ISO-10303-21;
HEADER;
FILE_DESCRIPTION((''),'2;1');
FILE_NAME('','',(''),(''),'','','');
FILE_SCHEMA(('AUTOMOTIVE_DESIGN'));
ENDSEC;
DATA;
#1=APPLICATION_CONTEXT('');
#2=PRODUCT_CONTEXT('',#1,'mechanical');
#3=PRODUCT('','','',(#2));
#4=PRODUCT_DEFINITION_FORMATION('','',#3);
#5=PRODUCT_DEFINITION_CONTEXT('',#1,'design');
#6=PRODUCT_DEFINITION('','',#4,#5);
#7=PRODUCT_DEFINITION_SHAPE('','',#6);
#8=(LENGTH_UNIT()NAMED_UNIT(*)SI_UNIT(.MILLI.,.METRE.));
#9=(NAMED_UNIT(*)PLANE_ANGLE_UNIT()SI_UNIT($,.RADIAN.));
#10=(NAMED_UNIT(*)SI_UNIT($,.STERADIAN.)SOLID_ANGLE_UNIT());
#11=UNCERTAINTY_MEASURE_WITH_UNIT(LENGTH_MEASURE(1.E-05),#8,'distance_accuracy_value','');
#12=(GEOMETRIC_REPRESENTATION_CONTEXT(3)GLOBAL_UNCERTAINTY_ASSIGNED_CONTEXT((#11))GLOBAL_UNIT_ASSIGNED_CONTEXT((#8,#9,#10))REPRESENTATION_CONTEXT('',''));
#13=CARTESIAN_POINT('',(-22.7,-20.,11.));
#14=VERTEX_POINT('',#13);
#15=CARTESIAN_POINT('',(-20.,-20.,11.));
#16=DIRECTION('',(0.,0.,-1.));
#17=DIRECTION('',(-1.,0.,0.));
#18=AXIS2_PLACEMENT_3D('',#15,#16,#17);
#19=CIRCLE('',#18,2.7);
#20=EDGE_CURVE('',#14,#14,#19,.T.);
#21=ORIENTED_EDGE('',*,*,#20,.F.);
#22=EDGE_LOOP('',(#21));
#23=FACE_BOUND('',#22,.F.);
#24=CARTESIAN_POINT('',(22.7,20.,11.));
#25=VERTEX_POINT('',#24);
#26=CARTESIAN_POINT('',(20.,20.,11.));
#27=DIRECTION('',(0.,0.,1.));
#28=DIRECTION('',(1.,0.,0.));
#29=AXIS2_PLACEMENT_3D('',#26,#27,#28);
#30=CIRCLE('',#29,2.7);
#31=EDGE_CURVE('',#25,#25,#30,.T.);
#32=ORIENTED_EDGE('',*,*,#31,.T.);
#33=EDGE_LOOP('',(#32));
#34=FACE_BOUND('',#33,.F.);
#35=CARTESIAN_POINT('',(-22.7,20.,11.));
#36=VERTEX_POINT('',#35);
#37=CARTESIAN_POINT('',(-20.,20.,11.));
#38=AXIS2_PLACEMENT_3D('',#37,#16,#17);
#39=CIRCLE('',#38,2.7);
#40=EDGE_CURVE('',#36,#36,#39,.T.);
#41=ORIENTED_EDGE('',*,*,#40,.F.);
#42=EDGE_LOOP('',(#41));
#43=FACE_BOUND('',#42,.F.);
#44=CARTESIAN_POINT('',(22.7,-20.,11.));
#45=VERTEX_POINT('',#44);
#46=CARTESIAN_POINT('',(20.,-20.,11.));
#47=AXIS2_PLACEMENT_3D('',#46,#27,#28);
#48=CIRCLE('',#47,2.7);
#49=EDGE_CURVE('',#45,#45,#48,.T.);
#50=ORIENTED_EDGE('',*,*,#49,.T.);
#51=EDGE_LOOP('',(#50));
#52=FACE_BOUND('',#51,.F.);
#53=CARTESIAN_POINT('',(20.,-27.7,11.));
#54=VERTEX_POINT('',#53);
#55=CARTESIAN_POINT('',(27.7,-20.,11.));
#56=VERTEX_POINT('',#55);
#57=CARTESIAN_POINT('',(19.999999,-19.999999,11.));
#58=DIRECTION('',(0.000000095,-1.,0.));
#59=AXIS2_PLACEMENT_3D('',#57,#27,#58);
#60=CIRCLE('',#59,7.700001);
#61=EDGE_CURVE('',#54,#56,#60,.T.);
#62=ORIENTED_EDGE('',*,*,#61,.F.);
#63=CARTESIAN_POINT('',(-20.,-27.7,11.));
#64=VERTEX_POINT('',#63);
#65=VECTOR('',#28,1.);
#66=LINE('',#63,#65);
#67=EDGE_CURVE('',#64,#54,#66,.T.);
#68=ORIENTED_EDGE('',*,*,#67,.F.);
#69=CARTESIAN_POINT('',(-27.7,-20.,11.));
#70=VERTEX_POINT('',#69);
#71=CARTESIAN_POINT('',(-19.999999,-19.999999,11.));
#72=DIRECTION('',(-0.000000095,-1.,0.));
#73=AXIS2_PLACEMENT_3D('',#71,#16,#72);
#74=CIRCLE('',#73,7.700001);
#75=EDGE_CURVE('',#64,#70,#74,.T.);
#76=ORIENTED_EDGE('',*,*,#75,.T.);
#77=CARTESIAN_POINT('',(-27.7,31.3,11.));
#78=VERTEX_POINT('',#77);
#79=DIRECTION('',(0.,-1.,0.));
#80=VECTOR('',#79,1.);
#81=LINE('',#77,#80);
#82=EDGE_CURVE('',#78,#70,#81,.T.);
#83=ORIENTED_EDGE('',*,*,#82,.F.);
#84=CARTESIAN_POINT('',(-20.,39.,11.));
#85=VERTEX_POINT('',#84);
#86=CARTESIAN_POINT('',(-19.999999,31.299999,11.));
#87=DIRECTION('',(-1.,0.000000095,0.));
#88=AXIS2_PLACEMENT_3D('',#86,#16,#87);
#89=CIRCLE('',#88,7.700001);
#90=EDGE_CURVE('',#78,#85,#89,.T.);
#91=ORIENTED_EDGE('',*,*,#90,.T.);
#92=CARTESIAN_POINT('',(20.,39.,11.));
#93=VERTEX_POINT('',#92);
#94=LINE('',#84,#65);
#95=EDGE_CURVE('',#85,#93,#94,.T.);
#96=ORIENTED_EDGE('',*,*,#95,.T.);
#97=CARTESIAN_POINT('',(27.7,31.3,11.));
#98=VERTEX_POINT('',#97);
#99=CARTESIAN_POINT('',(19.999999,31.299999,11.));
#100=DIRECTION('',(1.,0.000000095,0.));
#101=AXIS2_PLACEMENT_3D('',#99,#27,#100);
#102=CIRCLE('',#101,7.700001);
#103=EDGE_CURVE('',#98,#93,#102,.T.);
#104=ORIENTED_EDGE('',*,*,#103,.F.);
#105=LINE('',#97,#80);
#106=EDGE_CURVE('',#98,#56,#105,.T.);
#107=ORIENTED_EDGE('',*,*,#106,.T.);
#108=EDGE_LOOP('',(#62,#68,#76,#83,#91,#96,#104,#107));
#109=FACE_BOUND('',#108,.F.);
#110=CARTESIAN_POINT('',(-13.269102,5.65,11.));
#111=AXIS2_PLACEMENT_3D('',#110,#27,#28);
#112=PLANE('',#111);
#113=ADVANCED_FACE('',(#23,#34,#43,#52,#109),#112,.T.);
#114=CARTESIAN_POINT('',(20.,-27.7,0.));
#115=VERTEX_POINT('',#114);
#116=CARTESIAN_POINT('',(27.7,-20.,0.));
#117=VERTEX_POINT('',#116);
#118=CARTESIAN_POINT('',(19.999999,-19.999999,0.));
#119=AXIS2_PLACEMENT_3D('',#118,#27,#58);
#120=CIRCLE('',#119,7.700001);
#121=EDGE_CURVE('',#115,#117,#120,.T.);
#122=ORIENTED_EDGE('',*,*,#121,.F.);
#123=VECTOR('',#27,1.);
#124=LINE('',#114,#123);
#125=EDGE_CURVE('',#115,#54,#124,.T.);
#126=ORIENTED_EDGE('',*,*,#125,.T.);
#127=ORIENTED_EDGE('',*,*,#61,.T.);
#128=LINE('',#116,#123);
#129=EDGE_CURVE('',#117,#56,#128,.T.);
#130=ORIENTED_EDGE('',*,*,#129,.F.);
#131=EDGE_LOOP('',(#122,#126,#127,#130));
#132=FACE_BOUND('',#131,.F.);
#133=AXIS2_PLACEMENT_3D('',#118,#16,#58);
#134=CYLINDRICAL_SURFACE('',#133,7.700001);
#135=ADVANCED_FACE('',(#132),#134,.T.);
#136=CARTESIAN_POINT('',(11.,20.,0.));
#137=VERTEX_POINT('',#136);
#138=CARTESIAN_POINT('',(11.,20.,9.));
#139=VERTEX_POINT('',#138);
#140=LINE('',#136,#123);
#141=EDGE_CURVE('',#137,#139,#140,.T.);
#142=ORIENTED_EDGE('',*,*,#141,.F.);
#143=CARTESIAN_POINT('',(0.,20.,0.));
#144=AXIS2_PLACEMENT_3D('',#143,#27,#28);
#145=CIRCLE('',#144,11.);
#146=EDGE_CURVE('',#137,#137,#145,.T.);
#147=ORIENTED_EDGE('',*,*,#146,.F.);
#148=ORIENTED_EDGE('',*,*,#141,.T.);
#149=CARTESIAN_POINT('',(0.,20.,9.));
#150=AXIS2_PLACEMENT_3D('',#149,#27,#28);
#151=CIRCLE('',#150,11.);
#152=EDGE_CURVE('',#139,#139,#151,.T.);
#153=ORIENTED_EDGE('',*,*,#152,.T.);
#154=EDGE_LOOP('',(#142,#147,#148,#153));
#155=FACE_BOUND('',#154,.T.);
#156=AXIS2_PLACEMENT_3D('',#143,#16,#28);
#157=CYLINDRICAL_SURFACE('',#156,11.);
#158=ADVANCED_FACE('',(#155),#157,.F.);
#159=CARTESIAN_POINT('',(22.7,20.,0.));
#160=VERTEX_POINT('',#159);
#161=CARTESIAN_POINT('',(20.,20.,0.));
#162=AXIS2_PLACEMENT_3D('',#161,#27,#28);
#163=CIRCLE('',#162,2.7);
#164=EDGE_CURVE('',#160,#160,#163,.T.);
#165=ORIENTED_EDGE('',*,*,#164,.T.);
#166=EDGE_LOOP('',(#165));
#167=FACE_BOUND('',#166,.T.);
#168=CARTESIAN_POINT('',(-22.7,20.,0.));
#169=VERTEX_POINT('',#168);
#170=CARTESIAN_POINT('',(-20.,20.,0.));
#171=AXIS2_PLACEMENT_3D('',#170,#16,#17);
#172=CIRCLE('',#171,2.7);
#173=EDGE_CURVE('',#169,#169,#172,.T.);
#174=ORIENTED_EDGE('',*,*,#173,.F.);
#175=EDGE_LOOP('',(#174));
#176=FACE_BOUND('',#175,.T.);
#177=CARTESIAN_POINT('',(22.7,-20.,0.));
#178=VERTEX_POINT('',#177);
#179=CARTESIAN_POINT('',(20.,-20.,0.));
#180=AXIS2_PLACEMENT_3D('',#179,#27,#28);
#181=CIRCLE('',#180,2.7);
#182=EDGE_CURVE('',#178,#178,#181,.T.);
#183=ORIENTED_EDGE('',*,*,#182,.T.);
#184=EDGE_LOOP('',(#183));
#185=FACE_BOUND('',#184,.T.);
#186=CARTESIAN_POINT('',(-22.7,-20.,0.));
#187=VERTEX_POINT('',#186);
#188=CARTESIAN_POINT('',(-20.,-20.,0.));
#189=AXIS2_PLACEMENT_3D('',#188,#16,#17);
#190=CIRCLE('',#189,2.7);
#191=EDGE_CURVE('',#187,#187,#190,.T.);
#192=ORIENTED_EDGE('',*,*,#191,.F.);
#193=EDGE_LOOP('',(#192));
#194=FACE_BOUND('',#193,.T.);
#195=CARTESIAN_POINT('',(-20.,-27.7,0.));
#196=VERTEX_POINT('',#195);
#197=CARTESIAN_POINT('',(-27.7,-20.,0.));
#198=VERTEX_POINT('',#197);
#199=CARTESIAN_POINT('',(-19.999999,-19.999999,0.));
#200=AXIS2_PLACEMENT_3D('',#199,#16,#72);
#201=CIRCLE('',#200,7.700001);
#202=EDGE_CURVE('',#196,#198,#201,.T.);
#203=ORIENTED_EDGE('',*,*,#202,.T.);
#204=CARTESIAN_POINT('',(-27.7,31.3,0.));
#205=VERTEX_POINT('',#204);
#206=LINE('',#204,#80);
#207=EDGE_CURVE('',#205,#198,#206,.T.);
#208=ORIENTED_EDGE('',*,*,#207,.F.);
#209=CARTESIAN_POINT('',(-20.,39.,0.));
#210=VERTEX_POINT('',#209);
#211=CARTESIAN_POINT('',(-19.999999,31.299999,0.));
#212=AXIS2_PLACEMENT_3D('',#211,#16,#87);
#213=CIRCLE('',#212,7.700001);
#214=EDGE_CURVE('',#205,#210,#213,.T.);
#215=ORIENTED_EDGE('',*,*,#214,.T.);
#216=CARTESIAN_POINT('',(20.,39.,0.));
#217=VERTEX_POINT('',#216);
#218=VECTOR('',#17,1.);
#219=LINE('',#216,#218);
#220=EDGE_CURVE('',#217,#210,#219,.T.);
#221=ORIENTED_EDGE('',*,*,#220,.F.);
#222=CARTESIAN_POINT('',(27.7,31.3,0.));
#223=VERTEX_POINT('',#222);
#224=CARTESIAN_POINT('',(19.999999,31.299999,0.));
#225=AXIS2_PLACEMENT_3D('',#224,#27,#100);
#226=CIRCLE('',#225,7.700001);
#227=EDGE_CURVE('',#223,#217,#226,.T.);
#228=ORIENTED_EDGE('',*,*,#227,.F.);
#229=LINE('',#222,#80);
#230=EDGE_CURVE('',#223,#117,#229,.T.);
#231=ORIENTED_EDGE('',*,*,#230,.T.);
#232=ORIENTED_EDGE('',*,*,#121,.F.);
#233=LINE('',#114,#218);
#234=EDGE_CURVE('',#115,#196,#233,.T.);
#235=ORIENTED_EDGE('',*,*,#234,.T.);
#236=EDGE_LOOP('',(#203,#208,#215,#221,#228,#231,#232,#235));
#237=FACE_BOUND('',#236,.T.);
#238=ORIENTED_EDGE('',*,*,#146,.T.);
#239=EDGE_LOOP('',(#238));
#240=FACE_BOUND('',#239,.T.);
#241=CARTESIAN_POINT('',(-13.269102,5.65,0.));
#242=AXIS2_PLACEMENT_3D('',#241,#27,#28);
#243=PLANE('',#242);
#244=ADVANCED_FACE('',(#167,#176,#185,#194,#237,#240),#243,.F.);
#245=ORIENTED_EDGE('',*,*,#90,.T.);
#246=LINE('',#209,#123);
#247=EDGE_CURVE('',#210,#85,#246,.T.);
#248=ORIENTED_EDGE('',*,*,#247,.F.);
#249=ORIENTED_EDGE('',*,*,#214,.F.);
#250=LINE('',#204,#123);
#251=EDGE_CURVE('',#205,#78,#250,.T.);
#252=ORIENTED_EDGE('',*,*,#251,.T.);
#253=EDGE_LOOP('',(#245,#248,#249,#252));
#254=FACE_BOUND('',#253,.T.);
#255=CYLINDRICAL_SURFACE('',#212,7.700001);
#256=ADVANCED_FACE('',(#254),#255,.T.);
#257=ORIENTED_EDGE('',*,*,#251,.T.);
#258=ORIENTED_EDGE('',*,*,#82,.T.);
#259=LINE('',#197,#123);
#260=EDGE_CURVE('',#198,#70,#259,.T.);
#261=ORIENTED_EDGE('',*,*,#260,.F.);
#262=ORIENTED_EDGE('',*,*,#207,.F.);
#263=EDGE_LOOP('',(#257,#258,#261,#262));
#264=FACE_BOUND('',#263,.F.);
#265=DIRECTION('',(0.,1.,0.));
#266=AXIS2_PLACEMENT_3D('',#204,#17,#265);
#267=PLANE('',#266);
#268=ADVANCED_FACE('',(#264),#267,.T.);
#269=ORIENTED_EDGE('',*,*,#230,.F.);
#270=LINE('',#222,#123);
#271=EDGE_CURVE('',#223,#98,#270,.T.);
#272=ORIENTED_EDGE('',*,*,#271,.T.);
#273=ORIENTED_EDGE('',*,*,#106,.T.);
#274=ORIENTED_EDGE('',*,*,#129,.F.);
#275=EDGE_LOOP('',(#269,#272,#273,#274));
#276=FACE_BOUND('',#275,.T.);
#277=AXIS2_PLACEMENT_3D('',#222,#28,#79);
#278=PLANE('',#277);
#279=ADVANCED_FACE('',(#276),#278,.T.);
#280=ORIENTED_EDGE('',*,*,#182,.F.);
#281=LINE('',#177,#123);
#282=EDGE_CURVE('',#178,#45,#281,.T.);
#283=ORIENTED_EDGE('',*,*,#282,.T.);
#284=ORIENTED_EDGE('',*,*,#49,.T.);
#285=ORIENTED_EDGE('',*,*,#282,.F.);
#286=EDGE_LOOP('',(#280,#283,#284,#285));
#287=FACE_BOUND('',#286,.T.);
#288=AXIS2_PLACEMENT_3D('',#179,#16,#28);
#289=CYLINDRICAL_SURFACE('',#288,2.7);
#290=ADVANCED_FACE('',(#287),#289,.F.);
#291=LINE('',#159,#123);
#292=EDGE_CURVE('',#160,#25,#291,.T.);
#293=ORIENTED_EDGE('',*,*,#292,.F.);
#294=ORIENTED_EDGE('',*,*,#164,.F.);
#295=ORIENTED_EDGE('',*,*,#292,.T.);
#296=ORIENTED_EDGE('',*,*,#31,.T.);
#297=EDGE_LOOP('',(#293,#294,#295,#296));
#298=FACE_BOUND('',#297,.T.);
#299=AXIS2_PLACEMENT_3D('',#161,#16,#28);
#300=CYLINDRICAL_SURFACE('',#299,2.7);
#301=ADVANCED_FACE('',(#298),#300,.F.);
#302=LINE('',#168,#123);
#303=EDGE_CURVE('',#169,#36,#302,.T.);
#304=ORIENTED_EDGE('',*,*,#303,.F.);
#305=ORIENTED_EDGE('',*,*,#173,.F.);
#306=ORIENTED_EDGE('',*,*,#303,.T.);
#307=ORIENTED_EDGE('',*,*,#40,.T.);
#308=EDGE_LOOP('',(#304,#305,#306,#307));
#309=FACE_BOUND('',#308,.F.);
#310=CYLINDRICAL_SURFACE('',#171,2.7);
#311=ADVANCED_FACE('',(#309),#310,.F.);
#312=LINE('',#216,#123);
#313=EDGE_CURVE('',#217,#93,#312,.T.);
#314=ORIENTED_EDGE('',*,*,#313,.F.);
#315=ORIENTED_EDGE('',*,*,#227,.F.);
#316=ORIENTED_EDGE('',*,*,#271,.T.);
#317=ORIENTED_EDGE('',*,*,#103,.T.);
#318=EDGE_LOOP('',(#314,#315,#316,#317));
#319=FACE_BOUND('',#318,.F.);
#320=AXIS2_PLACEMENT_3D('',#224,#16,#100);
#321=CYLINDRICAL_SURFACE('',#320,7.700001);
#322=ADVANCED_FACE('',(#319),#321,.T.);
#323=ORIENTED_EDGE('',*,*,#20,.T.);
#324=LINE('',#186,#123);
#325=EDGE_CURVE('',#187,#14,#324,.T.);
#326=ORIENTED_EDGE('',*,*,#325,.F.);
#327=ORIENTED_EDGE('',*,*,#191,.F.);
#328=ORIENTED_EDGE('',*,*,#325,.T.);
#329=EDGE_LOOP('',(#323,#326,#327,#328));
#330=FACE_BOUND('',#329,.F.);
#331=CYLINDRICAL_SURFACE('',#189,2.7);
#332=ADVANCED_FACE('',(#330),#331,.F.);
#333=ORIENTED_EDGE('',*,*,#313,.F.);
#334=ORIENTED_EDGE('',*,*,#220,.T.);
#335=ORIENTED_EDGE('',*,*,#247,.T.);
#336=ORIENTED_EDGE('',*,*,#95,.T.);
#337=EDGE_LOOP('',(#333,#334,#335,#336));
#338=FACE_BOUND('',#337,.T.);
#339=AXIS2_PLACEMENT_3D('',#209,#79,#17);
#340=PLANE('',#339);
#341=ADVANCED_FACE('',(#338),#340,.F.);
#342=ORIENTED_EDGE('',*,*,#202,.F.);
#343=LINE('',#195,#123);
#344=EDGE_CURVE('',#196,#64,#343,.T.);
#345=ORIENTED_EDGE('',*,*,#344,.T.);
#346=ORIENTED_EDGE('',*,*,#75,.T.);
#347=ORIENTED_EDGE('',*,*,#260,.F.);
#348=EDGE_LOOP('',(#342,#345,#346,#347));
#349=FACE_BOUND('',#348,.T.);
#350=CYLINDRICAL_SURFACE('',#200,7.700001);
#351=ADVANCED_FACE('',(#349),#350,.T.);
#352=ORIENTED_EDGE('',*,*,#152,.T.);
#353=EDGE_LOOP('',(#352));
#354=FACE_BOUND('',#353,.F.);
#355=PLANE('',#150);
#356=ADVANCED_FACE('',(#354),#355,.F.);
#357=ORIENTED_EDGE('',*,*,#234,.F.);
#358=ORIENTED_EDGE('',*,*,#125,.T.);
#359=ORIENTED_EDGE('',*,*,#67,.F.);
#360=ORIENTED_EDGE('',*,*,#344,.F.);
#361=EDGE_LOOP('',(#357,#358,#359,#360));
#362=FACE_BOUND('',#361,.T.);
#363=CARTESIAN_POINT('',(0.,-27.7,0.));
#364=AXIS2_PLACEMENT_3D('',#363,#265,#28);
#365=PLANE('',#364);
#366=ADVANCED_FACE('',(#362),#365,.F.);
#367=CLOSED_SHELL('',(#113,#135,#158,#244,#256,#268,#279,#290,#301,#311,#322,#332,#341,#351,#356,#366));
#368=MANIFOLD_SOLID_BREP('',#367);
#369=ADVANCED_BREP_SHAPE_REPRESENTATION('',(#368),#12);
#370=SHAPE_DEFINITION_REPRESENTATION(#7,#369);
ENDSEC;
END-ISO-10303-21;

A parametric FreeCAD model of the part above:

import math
import FreeCAD as App
import Part
import Sketcher
Q = App.Units.Quantity

doc = App.newDocument("Part")
body = doc.addObject("PartDesign::Body", "Body")

# Sketch on XY plane
sketch1 = doc.addObject("Sketcher::SketchObject", "Sketch")
body.addObject(sketch1)
sketch1.AttachmentSupport = (doc.XY_Plane, [""])
sketch1.MapMode = "FlatFace"
sketch1.addGeometry([
    Part.LineSegment(App.Vector(20, 39, 0), App.Vector(0, 39, 0)),  # 0
    Part.LineSegment(App.Vector(0, 39, 0), App.Vector(0, -27.7, 0)),  # 1
    Part.LineSegment(App.Vector(0, -27.7, 0), App.Vector(20, -27.7, 0)),  # 2
    Part.ArcOfCircle(Part.Circle(App.Vector(20, -20, 0), App.Vector(0, 0, 1), 7.7), math.radians(-90), math.radians(0)),  # 3
    Part.LineSegment(App.Vector(27.7, -20, 0), App.Vector(27.7, 31.3, 0)),  # 4
    Part.ArcOfCircle(Part.Circle(App.Vector(20, 31.3, 0), App.Vector(0, 0, 1), 7.7), math.radians(0), math.radians(90)),  # 5
    Part.Circle(App.Vector(20, -20, 0), App.Vector(0, 0, 1), 2.7),  # 6
    Part.Circle(App.Vector(20, 20, 0), App.Vector(0, 0, 1), 2.7),  # 7
], False)
sketch1.addConstraint([
    Sketcher.Constraint("Coincident", 0, 2, 1, 1),
    Sketcher.Constraint("Coincident", 1, 2, 2, 1),
    Sketcher.Constraint("Tangent", 2, 2, 3, 1),
    Sketcher.Constraint("Tangent", 3, 2, 4, 1),
    Sketcher.Constraint("Tangent", 4, 2, 5, 1),
    Sketcher.Constraint("Tangent", 5, 2, 0, 1),
    Sketcher.Constraint("Horizontal", 0),
    Sketcher.Constraint("Vertical", 1),
    Sketcher.Constraint("Horizontal", 2),
    Sketcher.Constraint("Vertical", 4),
    Sketcher.Constraint("Coincident", 6, 3, 3, 3),
    Sketcher.Constraint("Equal", 3, 5),
    Sketcher.Constraint("Equal", 6, 7),
    Sketcher.Constraint("Symmetric", 3, 3, 7, 3, -1),
    Sketcher.Constraint("PointOnObject", 0, 2, -2),
    Sketcher.Constraint("Diameter", 6, Q("5.4 mm")),
    Sketcher.Constraint("Radius", 3, Q("7.700001 mm")),
    Sketcher.Constraint("DistanceX", 0, 2, 0, 1, Q("20 mm")),
    Sketcher.Constraint("DistanceY", 1, 2, 1, 1, Q("66.7 mm")),
    Sketcher.Constraint("DistanceY", 3, 3, -1, 1, Q("19.999999 mm")),
])
pad1 = doc.addObject("PartDesign::Pad", "Pad")
body.addObject(pad1)
pad1.Profile = sketch1
pad1.Length = 11
doc.recompute()

mirrored = doc.addObject("PartDesign::Mirrored", "Mirrored")
body.addObject(mirrored)
mirrored.Originals = [pad1]
mirrored.MirrorPlane = (doc.YZ_Plane, [""])
body.Tip = mirrored

# Sketch on XY plane
sketch2 = doc.addObject("Sketcher::SketchObject", "Sketch001")
body.addObject(sketch2)
sketch2.AttachmentSupport = (doc.XY_Plane, [""])
sketch2.MapMode = "FlatFace"
sketch2.addGeometry(Part.Circle(App.Vector(0, 20, 0), App.Vector(0, 0, 1), 11), False)
sketch2.addConstraint([
    Sketcher.Constraint("PointOnObject", 0, 3, -2),
    Sketcher.Constraint("Diameter", 0, Q("22 mm")),
    Sketcher.Constraint("DistanceY", -1, 1, 0, 3, Q("20 mm")),
])
pocket1 = doc.addObject("PartDesign::Pocket", "Pocket")
body.addObject(pocket1)
pocket1.Profile = sketch2
pocket1.Length = 9
pocket1.Reversed = True

doc.recompute()
